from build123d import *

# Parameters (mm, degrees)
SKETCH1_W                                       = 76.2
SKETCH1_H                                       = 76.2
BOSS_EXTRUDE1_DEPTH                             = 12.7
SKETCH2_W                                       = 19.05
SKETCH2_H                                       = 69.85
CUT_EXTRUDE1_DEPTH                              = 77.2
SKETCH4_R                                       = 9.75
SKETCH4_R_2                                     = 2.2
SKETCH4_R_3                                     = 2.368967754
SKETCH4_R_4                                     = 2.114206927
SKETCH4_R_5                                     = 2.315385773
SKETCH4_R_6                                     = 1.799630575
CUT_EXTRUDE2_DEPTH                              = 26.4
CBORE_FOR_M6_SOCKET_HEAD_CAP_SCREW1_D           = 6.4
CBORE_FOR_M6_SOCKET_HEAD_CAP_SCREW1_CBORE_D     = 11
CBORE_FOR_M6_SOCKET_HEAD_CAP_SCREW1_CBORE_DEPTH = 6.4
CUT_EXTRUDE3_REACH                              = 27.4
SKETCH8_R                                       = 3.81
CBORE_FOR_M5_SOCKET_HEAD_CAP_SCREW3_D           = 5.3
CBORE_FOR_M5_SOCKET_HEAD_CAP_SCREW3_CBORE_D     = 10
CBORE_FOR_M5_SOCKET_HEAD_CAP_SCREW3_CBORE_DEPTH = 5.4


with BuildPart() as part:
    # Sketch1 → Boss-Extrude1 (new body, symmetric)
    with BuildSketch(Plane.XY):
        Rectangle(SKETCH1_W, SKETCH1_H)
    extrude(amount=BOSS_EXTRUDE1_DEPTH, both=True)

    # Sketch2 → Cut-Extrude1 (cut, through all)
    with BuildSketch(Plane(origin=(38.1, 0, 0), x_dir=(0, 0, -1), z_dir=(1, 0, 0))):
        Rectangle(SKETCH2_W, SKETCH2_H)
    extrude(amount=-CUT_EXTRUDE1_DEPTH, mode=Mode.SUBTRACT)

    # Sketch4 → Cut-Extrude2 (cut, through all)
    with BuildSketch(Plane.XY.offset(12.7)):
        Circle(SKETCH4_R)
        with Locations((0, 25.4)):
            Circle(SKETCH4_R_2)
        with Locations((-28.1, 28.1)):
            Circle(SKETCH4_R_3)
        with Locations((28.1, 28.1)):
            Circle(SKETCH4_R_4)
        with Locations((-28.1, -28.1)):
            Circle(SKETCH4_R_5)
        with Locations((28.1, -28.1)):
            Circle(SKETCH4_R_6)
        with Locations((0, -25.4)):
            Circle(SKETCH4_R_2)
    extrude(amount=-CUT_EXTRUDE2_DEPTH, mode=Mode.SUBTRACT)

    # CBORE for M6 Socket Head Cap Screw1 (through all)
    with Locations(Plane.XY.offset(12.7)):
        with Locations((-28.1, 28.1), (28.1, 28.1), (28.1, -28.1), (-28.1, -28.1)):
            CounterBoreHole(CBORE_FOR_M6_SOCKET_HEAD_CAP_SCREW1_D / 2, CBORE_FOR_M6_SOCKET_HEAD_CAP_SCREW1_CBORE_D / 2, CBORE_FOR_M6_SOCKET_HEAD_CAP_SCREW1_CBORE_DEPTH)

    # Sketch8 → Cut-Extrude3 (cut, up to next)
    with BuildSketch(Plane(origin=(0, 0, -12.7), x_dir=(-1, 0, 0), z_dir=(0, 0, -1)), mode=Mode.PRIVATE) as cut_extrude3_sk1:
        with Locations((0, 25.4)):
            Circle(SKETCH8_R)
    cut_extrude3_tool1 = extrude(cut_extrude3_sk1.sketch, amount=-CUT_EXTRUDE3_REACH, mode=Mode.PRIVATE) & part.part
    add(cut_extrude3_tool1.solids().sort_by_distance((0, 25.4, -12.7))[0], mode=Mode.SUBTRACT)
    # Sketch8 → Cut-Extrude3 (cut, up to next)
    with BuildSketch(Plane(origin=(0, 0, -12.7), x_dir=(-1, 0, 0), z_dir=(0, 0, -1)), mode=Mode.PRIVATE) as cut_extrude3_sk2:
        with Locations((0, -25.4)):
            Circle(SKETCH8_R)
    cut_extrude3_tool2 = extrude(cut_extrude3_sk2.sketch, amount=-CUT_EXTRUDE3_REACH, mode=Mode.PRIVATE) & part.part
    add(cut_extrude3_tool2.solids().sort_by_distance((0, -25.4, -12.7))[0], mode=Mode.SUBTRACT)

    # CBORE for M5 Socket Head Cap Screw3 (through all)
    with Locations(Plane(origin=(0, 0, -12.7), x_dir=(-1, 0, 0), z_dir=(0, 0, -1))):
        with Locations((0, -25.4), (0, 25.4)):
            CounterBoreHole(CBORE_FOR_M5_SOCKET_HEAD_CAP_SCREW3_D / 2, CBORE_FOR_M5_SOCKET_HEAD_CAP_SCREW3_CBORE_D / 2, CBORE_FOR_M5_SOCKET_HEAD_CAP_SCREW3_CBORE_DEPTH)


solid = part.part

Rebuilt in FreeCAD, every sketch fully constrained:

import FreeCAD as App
import Part
import Sketcher
from FreeCAD import Vector
Q = App.Units.Quantity


def add_polygon(sketch, points):
    """Adds a closed chain of lines whose ends are joined by coincident constraints."""
    first, n = sketch.GeometryCount, len(points)
    for a, b in zip(points, points[1:] + points[:1]):
        sketch.addGeometry(Part.LineSegment(App.Vector(*a, 0), App.Vector(*b, 0)), False)
    for i in range(n):
        sketch.addConstraint(Sketcher.Constraint("Coincident", first + i, 2, first + (i + 1) % n, 1))

doc = App.newDocument("Part")
body = doc.addObject("PartDesign::Body", "Body")

# Sketch on XY plane
sketch1 = doc.addObject("Sketcher::SketchObject", "Sketch")
body.addObject(sketch1)
sketch1.AttachmentSupport = (doc.XY_Plane, [""])
sketch1.MapMode = "FlatFace"
add_polygon(sketch1, [(-38.1, 38.1), (-38.1, -38.1), (38.1, -38.1), (38.1, 38.1)])  # lines 0-3
sketch1.addConstraint(Sketcher.Constraint("Vertical", 0))
sketch1.addConstraint(Sketcher.Constraint("Horizontal", 1))
sketch1.addConstraint(Sketcher.Constraint("Vertical", 2))
sketch1.addConstraint(Sketcher.Constraint("Horizontal", 3))
sketch1.addConstraint(Sketcher.Constraint("Symmetric", 0, 2, 2, 2, -1, 1))
sketch1.addConstraint(Sketcher.Constraint("Equal", 3, 0))
sketch1.addConstraint(Sketcher.Constraint("DistanceX", 1, 1, 1, 2, Q("76.2 mm")))
pad1 = doc.addObject("PartDesign::Pad", "Pad")
body.addObject(pad1)
pad1.Profile = sketch1
pad1.Length = 25.4
pad1.Midplane = True

# Sketch on YZ plane
sketch2 = doc.addObject("Sketcher::SketchObject", "Sketch001")
body.addObject(sketch2)
sketch2.AttachmentSupport = (doc.YZ_Plane, [""])
sketch2.MapMode = "FlatFace"
sketch2.AttachmentOffset = App.Placement(Vector(0, 0, 38.1), App.Rotation())
add_polygon(sketch2, [(34.925, 9.525), (-34.925, 9.525), (-34.925, -9.525), (34.925, -9.525)])  # lines 0-3
sketch2.addConstraint(Sketcher.Constraint("Horizontal", 0))
sketch2.addConstraint(Sketcher.Constraint("Vertical", 1))
sketch2.addConstraint(Sketcher.Constraint("Horizontal", 2))
sketch2.addConstraint(Sketcher.Constraint("Vertical", 3))
sketch2.addConstraint(Sketcher.Constraint("Symmetric", 0, 2, 2, 2, -1, 1))
sketch2.addConstraint(Sketcher.Constraint("DistanceX", 0, 2, 0, 1, Q("69.85 mm")))
sketch2.addConstraint(Sketcher.Constraint("DistanceY", 1, 2, 1, 1, Q("19.05 mm")))
pocket1 = doc.addObject("PartDesign::Pocket", "Pocket")
body.addObject(pocket1)
pocket1.Profile = sketch2
pocket1.Type = "ThroughAll"

# Sketch on XY plane
sketch3 = doc.addObject("Sketcher::SketchObject", "Sketch002")
body.addObject(sketch3)
sketch3.AttachmentSupport = (doc.XY_Plane, [""])
sketch3.MapMode = "FlatFace"
sketch3.AttachmentOffset = App.Placement(Vector(0, 0, 12.7), App.Rotation())
sketch3.addGeometry(Part.Circle(Vector(0, 0, 0), Vector(0, 0, 1), 9.75), False)
sketch3.addGeometry(Part.Circle(Vector(0, 25.4, 0), Vector(0, 0, 1), 2.2), False)
sketch3.addGeometry(Part.Circle(Vector(-28.1, 28.1, 0), Vector(0, 0, 1), 2.368968), False)
sketch3.addGeometry(Part.Circle(Vector(28.1, 28.1, 0), Vector(0, 0, 1), 2.114207), False)
sketch3.addGeometry(Part.Circle(Vector(-28.1, -28.1, 0), Vector(0, 0, 1), 2.315386), False)
sketch3.addGeometry(Part.Circle(Vector(28.1, -28.1, 0), Vector(0, 0, 1), 1.799631), False)
sketch3.addGeometry(Part.Circle(Vector(0, -25.4, 0), Vector(0, 0, 1), 2.2), False)
sketch3.addConstraint(Sketcher.Constraint("Coincident", 0, 3, -1, 1))
sketch3.addConstraint(Sketcher.Constraint("Equal", 1, 6))
sketch3.addConstraint(Sketcher.Constraint("Symmetric", 3, 3, 4, 3, -1, 1))
sketch3.addConstraint(Sketcher.Constraint("Symmetric", 2, 3, 5, 3, -1, 1))
sketch3.addConstraint(Sketcher.Constraint("Symmetric", 1, 3, 6, 3, -1, 1))
sketch3.addConstraint(Sketcher.Constraint("Symmetric", 2, 3, 3, 3, -2))
sketch3.addConstraint(Sketcher.Constraint("PointOnObject", 1, 3, -2))
sketch3.addConstraint(Sketcher.Constraint("Diameter", 0, Q("19.5 mm")))
sketch3.addConstraint(Sketcher.Constraint("Diameter", 1, Q("4.4 mm")))
sketch3.addConstraint(Sketcher.Constraint("DistanceY", -1, 1, 1, 3, Q("25.4 mm")))
sketch3.addConstraint(Sketcher.Constraint("DistanceX", 2, 3, -1, 1, Q("28.1 mm")))
sketch3.addConstraint(Sketcher.Constraint("DistanceY", -1, 1, 2, 3, Q("28.1 mm")))
sketch3.addConstraint(Sketcher.Constraint("Diameter", 4, Q("4.630772 mm")))
sketch3.addConstraint(Sketcher.Constraint("Diameter", 5, Q("3.599261 mm")))
sketch3.addConstraint(Sketcher.Constraint("Diameter", 2, Q("4.737936 mm")))
sketch3.addConstraint(Sketcher.Constraint("Diameter", 3, Q("4.228414 mm")))
pocket2 = doc.addObject("PartDesign::Pocket", "Pocket001")
body.addObject(pocket2)
pocket2.Profile = sketch3
pocket2.Type = "ThroughAll"

# Sketch on XY plane
sketch4 = doc.addObject("Sketcher::SketchObject", "Sketch003")
body.addObject(sketch4)
sketch4.AttachmentSupport = (doc.XY_Plane, [""])
sketch4.MapMode = "FlatFace"
sketch4.AttachmentOffset = App.Placement(Vector(0, 0, 12.7), App.Rotation())
sketch4.addGeometry(Part.Circle(Vector(-28.1, 28.1, 0), Vector(0, 0, 1), 3.2), False)
sketch4.addGeometry(Part.Circle(Vector(28.1, 28.1, 0), Vector(0, 0, 1), 3.2), False)
sketch4.addGeometry(Part.Circle(Vector(28.1, -28.1, 0), Vector(0, 0, 1), 3.2), False)
sketch4.addGeometry(Part.Circle(Vector(-28.1, -28.1, 0), Vector(0, 0, 1), 3.2), False)
sketch4.addConstraint(Sketcher.Constraint("Equal", 0, 1))
sketch4.addConstraint(Sketcher.Constraint("Equal", 1, 2))
sketch4.addConstraint(Sketcher.Constraint("Equal", 2, 3))
sketch4.addConstraint(Sketcher.Constraint("Symmetric", 0, 3, 2, 3, -1, 1))
sketch4.addConstraint(Sketcher.Constraint("Symmetric", 1, 3, 3, 3, -1, 1))
sketch4.addConstraint(Sketcher.Constraint("Symmetric", 0, 3, 1, 3, -2))
sketch4.addConstraint(Sketcher.Constraint("Diameter", 0, Q("6.4 mm")))
sketch4.addConstraint(Sketcher.Constraint("DistanceX", 0, 3, -1, 1, Q("28.1 mm")))
sketch4.addConstraint(Sketcher.Constraint("DistanceY", -1, 1, 0, 3, Q("28.1 mm")))
doc.recompute()
hole = doc.addObject("PartDesign::Hole", "Hole")
body.addObject(hole)
hole.Profile = sketch4
hole.ThreadType = "None"
hole.Diameter = 6.4
hole.DepthType = "ThroughAll"
hole.HoleCutType = "Counterbore"
hole.HoleCutDiameter = 11
hole.HoleCutDepth = 6.4

# Sketch on XY plane
sketch5 = doc.addObject("Sketcher::SketchObject", "Sketch004")
body.addObject(sketch5)
sketch5.AttachmentSupport = (doc.XY_Plane, [""])
sketch5.MapMode = "FlatFace"
sketch5.AttachmentOffset = App.Placement(Vector(0, 0, -12.7), App.Rotation())
sketch5.addGeometry(Part.Circle(Vector(0, 25.4, 0), Vector(0, 0, 1), 3.81), False)
sketch5.addConstraint(Sketcher.Constraint("PointOnObject", 0, 3, -2))
sketch5.addConstraint(Sketcher.Constraint("Diameter", 0, Q("7.62 mm")))
sketch5.addConstraint(Sketcher.Constraint("DistanceY", -1, 1, 0, 3, Q("25.4 mm")))
pocket3 = doc.addObject("PartDesign::Pocket", "Pocket002")
body.addObject(pocket3)
pocket3.Profile = sketch5
pocket3.Length = 3.175
pocket3.Reversed = True

# Sketch on XY plane
sketch6 = doc.addObject("Sketcher::SketchObject", "Sketch005")
body.addObject(sketch6)
sketch6.AttachmentSupport = (doc.XY_Plane, [""])
sketch6.MapMode = "FlatFace"
sketch6.AttachmentOffset = App.Placement(Vector(0, 0, -12.7), App.Rotation())
sketch6.addGeometry(Part.Circle(Vector(0, -25.4, 0), Vector(0, 0, 1), 3.81), False)
sketch6.addConstraint(Sketcher.Constraint("PointOnObject", 0, 3, -2))
sketch6.addConstraint(Sketcher.Constraint("Diameter", 0, Q("7.62 mm")))
sketch6.addConstraint(Sketcher.Constraint("DistanceY", 0, 3, -1, 1, Q("25.4 mm")))
pocket4 = doc.addObject("PartDesign::Pocket", "Pocket003")
body.addObject(pocket4)
pocket4.Profile = sketch6
pocket4.Length = 3.175
pocket4.Reversed = True

# Sketch on XY plane
sketch7 = doc.addObject("Sketcher::SketchObject", "Sketch006")
body.addObject(sketch7)
sketch7.AttachmentSupport = (doc.XY_Plane, [""])
sketch7.MapMode = "FlatFace"
sketch7.AttachmentOffset = App.Placement(Vector(0, 0, -12.7), App.Rotation())
sketch7.addGeometry(Part.Circle(Vector(0, -25.4, 0), Vector(0, 0, 1), 2.65), False)
sketch7.addGeometry(Part.Circle(Vector(0, 25.4, 0), Vector(0, 0, 1), 2.65), False)
sketch7.addConstraint(Sketcher.Constraint("Equal", 0, 1))
sketch7.addConstraint(Sketcher.Constraint("Symmetric", 0, 3, 1, 3, -1, 1))
sketch7.addConstraint(Sketcher.Constraint("PointOnObject", 0, 3, -2))
sketch7.addConstraint(Sketcher.Constraint("Diameter", 0, Q("5.3 mm")))
sketch7.addConstraint(Sketcher.Constraint("DistanceY", 0, 3, -1, 1, Q("25.4 mm")))
doc.recompute()
hole2 = doc.addObject("PartDesign::Hole", "Hole001")
body.addObject(hole2)
hole2.Profile = sketch7
hole2.ThreadType = "None"
hole2.Diameter = 5.3
hole2.DepthType = "ThroughAll"
hole2.HoleCutType = "Counterbore"
hole2.HoleCutDiameter = 10
hole2.HoleCutDepth = 5.4
hole2.Reversed = True

doc.recompute()
